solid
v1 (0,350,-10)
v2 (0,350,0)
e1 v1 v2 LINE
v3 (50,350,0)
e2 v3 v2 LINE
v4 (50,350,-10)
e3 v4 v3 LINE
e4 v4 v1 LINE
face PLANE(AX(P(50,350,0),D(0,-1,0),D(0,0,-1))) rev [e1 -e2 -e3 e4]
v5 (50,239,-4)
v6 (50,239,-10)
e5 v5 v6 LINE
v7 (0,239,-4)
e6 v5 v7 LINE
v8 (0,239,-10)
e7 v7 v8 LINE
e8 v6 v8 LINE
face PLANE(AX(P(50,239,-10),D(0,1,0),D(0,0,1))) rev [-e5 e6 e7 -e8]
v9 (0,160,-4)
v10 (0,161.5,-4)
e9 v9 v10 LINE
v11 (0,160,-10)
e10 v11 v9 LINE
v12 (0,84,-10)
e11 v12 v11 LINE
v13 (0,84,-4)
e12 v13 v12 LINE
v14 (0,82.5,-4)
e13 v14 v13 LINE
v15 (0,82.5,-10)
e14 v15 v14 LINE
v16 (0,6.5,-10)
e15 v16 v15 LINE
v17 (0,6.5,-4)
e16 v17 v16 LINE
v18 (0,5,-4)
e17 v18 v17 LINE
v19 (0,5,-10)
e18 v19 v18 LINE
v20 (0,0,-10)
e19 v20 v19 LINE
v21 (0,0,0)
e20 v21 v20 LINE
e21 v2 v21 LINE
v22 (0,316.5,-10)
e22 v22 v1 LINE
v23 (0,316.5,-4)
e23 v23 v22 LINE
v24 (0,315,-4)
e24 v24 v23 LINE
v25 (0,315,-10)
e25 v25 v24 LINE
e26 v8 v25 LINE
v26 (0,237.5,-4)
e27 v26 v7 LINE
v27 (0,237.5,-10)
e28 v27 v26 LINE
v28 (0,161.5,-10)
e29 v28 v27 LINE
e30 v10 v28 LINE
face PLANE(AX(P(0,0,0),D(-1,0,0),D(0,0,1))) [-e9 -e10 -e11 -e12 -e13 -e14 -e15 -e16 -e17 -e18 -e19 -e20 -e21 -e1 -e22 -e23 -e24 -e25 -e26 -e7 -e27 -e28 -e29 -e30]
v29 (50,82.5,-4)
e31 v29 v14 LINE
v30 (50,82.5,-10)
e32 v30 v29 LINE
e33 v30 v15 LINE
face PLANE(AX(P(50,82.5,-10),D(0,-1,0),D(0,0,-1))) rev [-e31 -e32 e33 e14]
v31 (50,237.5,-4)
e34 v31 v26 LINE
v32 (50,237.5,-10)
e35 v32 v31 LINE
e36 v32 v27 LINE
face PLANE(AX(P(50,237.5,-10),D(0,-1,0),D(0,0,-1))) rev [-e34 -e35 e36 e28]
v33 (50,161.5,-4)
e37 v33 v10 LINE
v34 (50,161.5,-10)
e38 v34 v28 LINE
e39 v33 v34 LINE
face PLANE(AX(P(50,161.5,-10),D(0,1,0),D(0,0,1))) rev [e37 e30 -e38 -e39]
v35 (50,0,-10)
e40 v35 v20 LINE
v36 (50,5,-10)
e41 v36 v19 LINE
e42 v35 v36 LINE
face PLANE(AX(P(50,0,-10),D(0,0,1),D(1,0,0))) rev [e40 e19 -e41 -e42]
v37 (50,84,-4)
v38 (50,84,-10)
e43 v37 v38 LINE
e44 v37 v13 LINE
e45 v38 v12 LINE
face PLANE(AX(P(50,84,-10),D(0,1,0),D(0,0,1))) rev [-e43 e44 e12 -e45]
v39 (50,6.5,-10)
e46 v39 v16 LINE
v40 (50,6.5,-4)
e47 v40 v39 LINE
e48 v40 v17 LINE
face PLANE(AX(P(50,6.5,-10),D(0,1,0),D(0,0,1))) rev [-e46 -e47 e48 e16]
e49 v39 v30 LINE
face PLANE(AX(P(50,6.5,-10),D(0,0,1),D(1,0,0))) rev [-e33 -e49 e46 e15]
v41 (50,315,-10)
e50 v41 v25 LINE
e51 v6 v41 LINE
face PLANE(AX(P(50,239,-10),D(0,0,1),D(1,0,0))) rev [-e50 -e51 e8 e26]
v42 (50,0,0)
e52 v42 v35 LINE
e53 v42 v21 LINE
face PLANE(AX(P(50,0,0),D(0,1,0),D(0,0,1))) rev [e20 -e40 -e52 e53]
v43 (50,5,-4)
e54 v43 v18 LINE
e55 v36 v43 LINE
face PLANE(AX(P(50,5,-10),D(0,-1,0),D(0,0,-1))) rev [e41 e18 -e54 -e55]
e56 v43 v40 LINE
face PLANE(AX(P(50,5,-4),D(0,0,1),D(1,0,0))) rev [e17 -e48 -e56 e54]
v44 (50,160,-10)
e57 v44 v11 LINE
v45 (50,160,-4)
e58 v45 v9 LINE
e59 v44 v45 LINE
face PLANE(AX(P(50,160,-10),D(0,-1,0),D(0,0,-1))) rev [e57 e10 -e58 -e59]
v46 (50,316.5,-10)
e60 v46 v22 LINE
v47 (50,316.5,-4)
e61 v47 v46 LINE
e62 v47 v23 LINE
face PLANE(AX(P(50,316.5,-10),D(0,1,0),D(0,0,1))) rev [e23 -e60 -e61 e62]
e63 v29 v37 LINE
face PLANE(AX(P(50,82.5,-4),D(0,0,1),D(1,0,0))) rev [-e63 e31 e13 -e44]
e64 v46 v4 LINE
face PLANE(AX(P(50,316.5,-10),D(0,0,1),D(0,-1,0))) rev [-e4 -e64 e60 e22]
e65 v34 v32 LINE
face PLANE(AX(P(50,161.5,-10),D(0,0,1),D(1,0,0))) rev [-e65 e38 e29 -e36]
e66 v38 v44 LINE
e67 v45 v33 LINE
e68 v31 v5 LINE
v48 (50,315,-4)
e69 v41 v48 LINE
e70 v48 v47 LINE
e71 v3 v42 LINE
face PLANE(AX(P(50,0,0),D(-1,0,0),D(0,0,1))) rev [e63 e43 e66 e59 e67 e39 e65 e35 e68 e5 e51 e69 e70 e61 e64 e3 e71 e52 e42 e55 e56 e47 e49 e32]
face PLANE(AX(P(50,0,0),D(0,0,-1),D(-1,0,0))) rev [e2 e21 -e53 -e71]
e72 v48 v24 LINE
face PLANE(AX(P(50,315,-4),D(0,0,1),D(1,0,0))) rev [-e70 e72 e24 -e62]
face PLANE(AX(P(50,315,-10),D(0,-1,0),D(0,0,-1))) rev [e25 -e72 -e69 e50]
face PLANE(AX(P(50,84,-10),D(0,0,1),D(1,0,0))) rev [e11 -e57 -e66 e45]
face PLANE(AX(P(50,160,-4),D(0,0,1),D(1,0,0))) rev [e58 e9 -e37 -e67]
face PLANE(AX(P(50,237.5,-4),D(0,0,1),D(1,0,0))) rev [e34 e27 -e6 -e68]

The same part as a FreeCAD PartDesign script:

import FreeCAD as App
import Part
import Sketcher
from FreeCAD import Vector
Q = App.Units.Quantity

doc = App.newDocument("Part")
body = doc.addObject("PartDesign::Body", "Body")

sketch1 = doc.addObject("Sketcher::SketchObject", "Sketch")
body.addObject(sketch1)
sketch1.AttachmentSupport = (doc.YZ_Plane, [""])
sketch1.MapMode = "FlatFace"
sketch1.addGeometry(Part.LineSegment(Vector(6.5, -10, 0), Vector(82.5, -10, 0)), False)
sketch1.addGeometry(Part.LineSegment(Vector(82.5, -10, 0), Vector(82.5, -4, 0)), False)
sketch1.addGeometry(Part.LineSegment(Vector(82.5, -4, 0), Vector(84, -4, 0)), False)
sketch1.addGeometry(Part.LineSegment(Vector(84, -4, 0), Vector(84, -10, 0)), False)
sketch1.addGeometry(Part.LineSegment(Vector(84, -10, 0), Vector(160, -10, 0)), False)
sketch1.addGeometry(Part.LineSegment(Vector(160, -10, 0), Vector(160, -4, 0)), False)
sketch1.addGeometry(Part.LineSegment(Vector(160, -4, 0), Vector(161.5, -4, 0)), False)
sketch1.addGeometry(Part.LineSegment(Vector(161.5, -4, 0), Vector(161.5, -10, 0)), False)
sketch1.addGeometry(Part.LineSegment(Vector(161.5, -10, 0), Vector(237.5, -10, 0)), False)
sketch1.addGeometry(Part.LineSegment(Vector(237.5, -10, 0), Vector(237.5, -4, 0)), False)
sketch1.addGeometry(Part.LineSegment(Vector(237.5, -4, 0), Vector(239, -4, 0)), False)
sketch1.addGeometry(Part.LineSegment(Vector(239, -4, 0), Vector(239, -10, 0)), False)
sketch1.addGeometry(Part.LineSegment(Vector(239, -10, 0), Vector(315, -10, 0)), False)
sketch1.addGeometry(Part.LineSegment(Vector(315, -10, 0), Vector(315, -4, 0)), False)
sketch1.addGeometry(Part.LineSegment(Vector(315, -4, 0), Vector(316.5, -4, 0)), False)
sketch1.addGeometry(Part.LineSegment(Vector(316.5, -4, 0), Vector(316.5, -10, 0)), False)
sketch1.addGeometry(Part.LineSegment(Vector(316.5, -10, 0), Vector(350, -10, 0)), False)
sketch1.addGeometry(Part.LineSegment(Vector(350, -10, 0), Vector(350, 0, 0)), False)
sketch1.addGeometry(Part.LineSegment(Vector(350, 0, 0), Vector(0, 0, 0)), False)
sketch1.addGeometry(Part.LineSegment(Vector(0, 0, 0), Vector(0, -10, 0)), False)
sketch1.addGeometry(Part.LineSegment(Vector(0, -10, 0), Vector(5, -10, 0)), False)
sketch1.addGeometry(Part.LineSegment(Vector(5, -10, 0), Vector(5, -4, 0)), False)
sketch1.addGeometry(Part.LineSegment(Vector(5, -4, 0), Vector(6.5, -4, 0)), False)
sketch1.addGeometry(Part.LineSegment(Vector(6.5, -4, 0), Vector(6.5, -10, 0)), False)
sketch1.addConstraint(Sketcher.Constraint("Coincident", 0, 2, 1, 1))
sketch1.addConstraint(Sketcher.Constraint("Coincident", 1, 2, 2, 1))
sketch1.addConstraint(Sketcher.Constraint("Coincident", 2, 2, 3, 1))
sketch1.addConstraint(Sketcher.Constraint("Coincident", 3, 2, 4, 1))
sketch1.addConstraint(Sketcher.Constraint("Coincident", 4, 2, 5, 1))
sketch1.addConstraint(Sketcher.Constraint("Coincident", 5, 2, 6, 1))
sketch1.addConstraint(Sketcher.Constraint("Coincident", 6, 2, 7, 1))
sketch1.addConstraint(Sketcher.Constraint("Coincident", 7, 2, 8, 1))
sketch1.addConstraint(Sketcher.Constraint("Coincident", 8, 2, 9, 1))
sketch1.addConstraint(Sketcher.Constraint("Coincident", 9, 2, 10, 1))
sketch1.addConstraint(Sketcher.Constraint("Coincident", 10, 2, 11, 1))
sketch1.addConstraint(Sketcher.Constraint("Coincident", 11, 2, 12, 1))
sketch1.addConstraint(Sketcher.Constraint("Coincident", 12, 2, 13, 1))
sketch1.addConstraint(Sketcher.Constraint("Coincident", 13, 2, 14, 1))
sketch1.addConstraint(Sketcher.Constraint("Coincident", 14, 2, 15, 1))
sketch1.addConstraint(Sketcher.Constraint("Coincident", 15, 2, 16, 1))
sketch1.addConstraint(Sketcher.Constraint("Coincident", 16, 2, 17, 1))
sketch1.addConstraint(Sketcher.Constraint("Coincident", 17, 2, 18, 1))
sketch1.addConstraint(Sketcher.Constraint("Coincident", 18, 2, 19, 1))
sketch1.addConstraint(Sketcher.Constraint("Coincident", 19, 2, 20, 1))
sketch1.addConstraint(Sketcher.Constraint("Coincident", 20, 2, 21, 1))
sketch1.addConstraint(Sketcher.Constraint("Coincident", 21, 2, 22, 1))
sketch1.addConstraint(Sketcher.Constraint("Coincident", 22, 2, 23, 1))
sketch1.addConstraint(Sketcher.Constraint("Coincident", 23, 2, 0, 1))
sketch1.addConstraint(Sketcher.Constraint("Horizontal", 0))
sketch1.addConstraint(Sketcher.Constraint("Vertical", 1))
sketch1.addConstraint(Sketcher.Constraint("Horizontal", 2))
sketch1.addConstraint(Sketcher.Constraint("Vertical", 3))
sketch1.addConstraint(Sketcher.Constraint("Horizontal", 4))
sketch1.addConstraint(Sketcher.Constraint("Vertical", 5))
sketch1.addConstraint(Sketcher.Constraint("Horizontal", 6))
sketch1.addConstraint(Sketcher.Constraint("Vertical", 7))
sketch1.addConstraint(Sketcher.Constraint("Horizontal", 8))
sketch1.addConstraint(Sketcher.Constraint("Vertical", 9))
sketch1.addConstraint(Sketcher.Constraint("Horizontal", 10))
sketch1.addConstraint(Sketcher.Constraint("Vertical", 11))
sketch1.addConstraint(Sketcher.Constraint("Horizontal", 12))
sketch1.addConstraint(Sketcher.Constraint("Vertical", 13))
sketch1.addConstraint(Sketcher.Constraint("Horizontal", 14))
sketch1.addConstraint(Sketcher.Constraint("Vertical", 15))
sketch1.addConstraint(Sketcher.Constraint("Horizontal", 16))
sketch1.addConstraint(Sketcher.Constraint("Vertical", 17))
sketch1.addConstraint(Sketcher.Constraint("Horizontal", 18))
sketch1.addConstraint(Sketcher.Constraint("Vertical", 19))
sketch1.addConstraint(Sketcher.Constraint("Horizontal", 20))
sketch1.addConstraint(Sketcher.Constraint("Vertical", 21))
sketch1.addConstraint(Sketcher.Constraint("Horizontal", 22))
sketch1.addConstraint(Sketcher.Constraint("Vertical", 23))
sketch1.addConstraint(Sketcher.Constraint("Coincident", 18, 2, -1, 1))
sketch1.addConstraint(Sketcher.Constraint("Horizontal", 0, 2, 3, 2))
sketch1.addConstraint(Sketcher.Constraint("Horizontal", 2, 2, 5, 2))
sketch1.addConstraint(Sketcher.Constraint("Horizontal", 4, 2, 7, 2))
sketch1.addConstraint(Sketcher.Constraint("Horizontal", 6, 2, 9, 2))
sketch1.addConstraint(Sketcher.Constraint("Horizontal", 8, 2, 11, 2))
sketch1.addConstraint(Sketcher.Constraint("Horizontal", 10, 2, 13, 2))
sketch1.addConstraint(Sketcher.Constraint("Horizontal", 12, 2, 15, 2))
sketch1.addConstraint(Sketcher.Constraint("Horizontal", 16, 2, 19, 2))
sketch1.addConstraint(Sketcher.Constraint("Horizontal", 14, 2, 21, 2))
sketch1.addConstraint(Sketcher.Constraint("Equal", 0, 4))
sketch1.addConstraint(Sketcher.Constraint("Equal", 2, 6))
sketch1.addConstraint(Sketcher.Constraint("Equal", 4, 8))
sketch1.addConstraint(Sketcher.Constraint("Equal", 6, 10))
sketch1.addConstraint(Sketcher.Constraint("Equal", 8, 12))
sketch1.addConstraint(Sketcher.Constraint("Equal", 10, 14))
sketch1.addConstraint(Sketcher.Constraint("Equal", 14, 22))
sketch1.addConstraint(Sketcher.Constraint("DistanceX", 0, 1, 0, 2, Q("76 mm")))
sketch1.addConstraint(Sketcher.Constraint("DistanceX", 18, 2, 18, 1, Q("350 mm")))
sketch1.addConstraint(Sketcher.Constraint("DistanceX", 20, 1, 20, 2, Q("5 mm")))
sketch1.addConstraint(Sketcher.Constraint("DistanceY", 1, 1, 1, 2, Q("6 mm")))
sketch1.addConstraint(Sketcher.Constraint("DistanceY", 17, 1, 17, 2, Q("10 mm")))
sketch1.addConstraint(Sketcher.Constraint("DistanceX", 2, 1, 2, 2, Q("1.5 mm")))
pad1 = doc.addObject("PartDesign::Pad", "Pad")
body.addObject(pad1)
pad1.Profile = sketch1
pad1.Length = 50

doc.recompute()
